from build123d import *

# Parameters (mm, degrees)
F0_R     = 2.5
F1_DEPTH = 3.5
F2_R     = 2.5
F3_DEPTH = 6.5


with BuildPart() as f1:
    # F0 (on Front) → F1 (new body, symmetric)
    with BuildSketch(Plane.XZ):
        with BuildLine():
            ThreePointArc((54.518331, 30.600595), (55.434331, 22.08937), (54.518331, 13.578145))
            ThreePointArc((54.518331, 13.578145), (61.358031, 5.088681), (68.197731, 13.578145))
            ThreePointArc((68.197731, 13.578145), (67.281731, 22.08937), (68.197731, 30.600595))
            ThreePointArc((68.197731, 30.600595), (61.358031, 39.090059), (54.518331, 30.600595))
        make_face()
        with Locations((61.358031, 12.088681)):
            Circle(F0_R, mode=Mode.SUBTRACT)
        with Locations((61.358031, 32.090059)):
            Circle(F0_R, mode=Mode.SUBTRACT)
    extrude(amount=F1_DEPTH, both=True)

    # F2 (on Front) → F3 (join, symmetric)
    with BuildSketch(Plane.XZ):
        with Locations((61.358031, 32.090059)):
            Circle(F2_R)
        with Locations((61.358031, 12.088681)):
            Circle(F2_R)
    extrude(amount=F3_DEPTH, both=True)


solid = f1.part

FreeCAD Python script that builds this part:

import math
import FreeCAD as App
import Part
import Sketcher
from FreeCAD import Vector

doc = App.newDocument("Part")
body = doc.addObject("PartDesign::Body", "Body")

sketch1 = body.newObject("Sketcher::SketchObject", "Sketch")
sketch1.AttachmentSupport = (doc.getObject("XZ_Plane"), [""])
sketch1.MapMode = "FlatFace"
sketch1.addGeometry([
    Part.ArcOfCircle(Part.Circle(Vector(15.4, 22.1, 0), Vector(0, 0, 1), 40), math.radians(-12), math.radians(12)),
    Part.ArcOfCircle(Part.Circle(Vector(61.4, 12.1, 0), Vector(0, 0, 1), 7), math.radians(168), math.radians(372)),
    Part.ArcOfCircle(Part.Circle(Vector(107.3, 22.1, 0), Vector(0, 0, 1), 40), math.radians(168), math.radians(192)),
    Part.ArcOfCircle(Part.Circle(Vector(61.4, 32.1, 0), Vector(0, 0, 1), 7), math.radians(-12), math.radians(192)),
    Part.Circle(Vector(61.4, 12.1, 0), Vector(0, 0, 1), 2.5),
    Part.Circle(Vector(61.4, 32.1, 0), Vector(0, 0, 1), 2.5),
], False)
sketch1.addConstraint([
    Sketcher.Constraint("Tangent", 0, 1, 1, 1),
    Sketcher.Constraint("Tangent", 1, 2, 2, 2),
    Sketcher.Constraint("Tangent", 2, 1, 3, 1),
    Sketcher.Constraint("Tangent", 3, 2, 0, 2),
    Sketcher.Constraint("Coincident", 4, 3, 1, 3),
    Sketcher.Constraint("Coincident", 5, 3, 3, 3),
    Sketcher.Constraint("Equal", 0, 2),
    Sketcher.Constraint("Equal", 1, 3),
    Sketcher.Constraint("Equal", 4, 5),
    Sketcher.Constraint("Horizontal", 0, 3, 2, 3),
    Sketcher.Constraint("Diameter", 4, 5.0),
    Sketcher.Constraint("Radius", 1, 7.0),
    Sketcher.Constraint("Radius", 0, 40.000004),
    Sketcher.Constraint("DistanceX", 4, 3, 1, 2, 6.8397),
    Sketcher.Constraint("DistanceY", -1, 1, 0, 3, 22.08937),
    Sketcher.Constraint("DistanceX", -1, 1, 1, 3, 61.358031),
])
pad1 = body.newObject("PartDesign::Pad", "Pad")
pad1.Profile = sketch1
pad1.Length = 7
pad1.Midplane = True

sketch2 = body.newObject("Sketcher::SketchObject", "Sketch001")
sketch2.AttachmentSupport = (doc.getObject("XZ_Plane"), [""])
sketch2.MapMode = "FlatFace"
sketch2.addGeometry([
    Part.Circle(Vector(61.4, 32.1, 0), Vector(0, 0, 1), 2.5),
    Part.Circle(Vector(61.4, 12.1, 0), Vector(0, 0, 1), 2.5),
], False)
sketch2.addConstraint([
    Sketcher.Constraint("Equal", 0, 1),
    Sketcher.Constraint("Vertical", 0, 3, 1, 3),
    Sketcher.Constraint("Diameter", 0, 5.0),
    Sketcher.Constraint("DistanceX", -1, 1, 0, 3, 61.358031),
    Sketcher.Constraint("DistanceY", -1, 1, 0, 3, 32.090059),
    Sketcher.Constraint("DistanceY", -1, 1, 1, 3, 12.088681),
])
pad2 = body.newObject("PartDesign::Pad", "Pad001")
pad2.Profile = sketch2
pad2.Length = 13
pad2.Midplane = True

doc.recompute()
